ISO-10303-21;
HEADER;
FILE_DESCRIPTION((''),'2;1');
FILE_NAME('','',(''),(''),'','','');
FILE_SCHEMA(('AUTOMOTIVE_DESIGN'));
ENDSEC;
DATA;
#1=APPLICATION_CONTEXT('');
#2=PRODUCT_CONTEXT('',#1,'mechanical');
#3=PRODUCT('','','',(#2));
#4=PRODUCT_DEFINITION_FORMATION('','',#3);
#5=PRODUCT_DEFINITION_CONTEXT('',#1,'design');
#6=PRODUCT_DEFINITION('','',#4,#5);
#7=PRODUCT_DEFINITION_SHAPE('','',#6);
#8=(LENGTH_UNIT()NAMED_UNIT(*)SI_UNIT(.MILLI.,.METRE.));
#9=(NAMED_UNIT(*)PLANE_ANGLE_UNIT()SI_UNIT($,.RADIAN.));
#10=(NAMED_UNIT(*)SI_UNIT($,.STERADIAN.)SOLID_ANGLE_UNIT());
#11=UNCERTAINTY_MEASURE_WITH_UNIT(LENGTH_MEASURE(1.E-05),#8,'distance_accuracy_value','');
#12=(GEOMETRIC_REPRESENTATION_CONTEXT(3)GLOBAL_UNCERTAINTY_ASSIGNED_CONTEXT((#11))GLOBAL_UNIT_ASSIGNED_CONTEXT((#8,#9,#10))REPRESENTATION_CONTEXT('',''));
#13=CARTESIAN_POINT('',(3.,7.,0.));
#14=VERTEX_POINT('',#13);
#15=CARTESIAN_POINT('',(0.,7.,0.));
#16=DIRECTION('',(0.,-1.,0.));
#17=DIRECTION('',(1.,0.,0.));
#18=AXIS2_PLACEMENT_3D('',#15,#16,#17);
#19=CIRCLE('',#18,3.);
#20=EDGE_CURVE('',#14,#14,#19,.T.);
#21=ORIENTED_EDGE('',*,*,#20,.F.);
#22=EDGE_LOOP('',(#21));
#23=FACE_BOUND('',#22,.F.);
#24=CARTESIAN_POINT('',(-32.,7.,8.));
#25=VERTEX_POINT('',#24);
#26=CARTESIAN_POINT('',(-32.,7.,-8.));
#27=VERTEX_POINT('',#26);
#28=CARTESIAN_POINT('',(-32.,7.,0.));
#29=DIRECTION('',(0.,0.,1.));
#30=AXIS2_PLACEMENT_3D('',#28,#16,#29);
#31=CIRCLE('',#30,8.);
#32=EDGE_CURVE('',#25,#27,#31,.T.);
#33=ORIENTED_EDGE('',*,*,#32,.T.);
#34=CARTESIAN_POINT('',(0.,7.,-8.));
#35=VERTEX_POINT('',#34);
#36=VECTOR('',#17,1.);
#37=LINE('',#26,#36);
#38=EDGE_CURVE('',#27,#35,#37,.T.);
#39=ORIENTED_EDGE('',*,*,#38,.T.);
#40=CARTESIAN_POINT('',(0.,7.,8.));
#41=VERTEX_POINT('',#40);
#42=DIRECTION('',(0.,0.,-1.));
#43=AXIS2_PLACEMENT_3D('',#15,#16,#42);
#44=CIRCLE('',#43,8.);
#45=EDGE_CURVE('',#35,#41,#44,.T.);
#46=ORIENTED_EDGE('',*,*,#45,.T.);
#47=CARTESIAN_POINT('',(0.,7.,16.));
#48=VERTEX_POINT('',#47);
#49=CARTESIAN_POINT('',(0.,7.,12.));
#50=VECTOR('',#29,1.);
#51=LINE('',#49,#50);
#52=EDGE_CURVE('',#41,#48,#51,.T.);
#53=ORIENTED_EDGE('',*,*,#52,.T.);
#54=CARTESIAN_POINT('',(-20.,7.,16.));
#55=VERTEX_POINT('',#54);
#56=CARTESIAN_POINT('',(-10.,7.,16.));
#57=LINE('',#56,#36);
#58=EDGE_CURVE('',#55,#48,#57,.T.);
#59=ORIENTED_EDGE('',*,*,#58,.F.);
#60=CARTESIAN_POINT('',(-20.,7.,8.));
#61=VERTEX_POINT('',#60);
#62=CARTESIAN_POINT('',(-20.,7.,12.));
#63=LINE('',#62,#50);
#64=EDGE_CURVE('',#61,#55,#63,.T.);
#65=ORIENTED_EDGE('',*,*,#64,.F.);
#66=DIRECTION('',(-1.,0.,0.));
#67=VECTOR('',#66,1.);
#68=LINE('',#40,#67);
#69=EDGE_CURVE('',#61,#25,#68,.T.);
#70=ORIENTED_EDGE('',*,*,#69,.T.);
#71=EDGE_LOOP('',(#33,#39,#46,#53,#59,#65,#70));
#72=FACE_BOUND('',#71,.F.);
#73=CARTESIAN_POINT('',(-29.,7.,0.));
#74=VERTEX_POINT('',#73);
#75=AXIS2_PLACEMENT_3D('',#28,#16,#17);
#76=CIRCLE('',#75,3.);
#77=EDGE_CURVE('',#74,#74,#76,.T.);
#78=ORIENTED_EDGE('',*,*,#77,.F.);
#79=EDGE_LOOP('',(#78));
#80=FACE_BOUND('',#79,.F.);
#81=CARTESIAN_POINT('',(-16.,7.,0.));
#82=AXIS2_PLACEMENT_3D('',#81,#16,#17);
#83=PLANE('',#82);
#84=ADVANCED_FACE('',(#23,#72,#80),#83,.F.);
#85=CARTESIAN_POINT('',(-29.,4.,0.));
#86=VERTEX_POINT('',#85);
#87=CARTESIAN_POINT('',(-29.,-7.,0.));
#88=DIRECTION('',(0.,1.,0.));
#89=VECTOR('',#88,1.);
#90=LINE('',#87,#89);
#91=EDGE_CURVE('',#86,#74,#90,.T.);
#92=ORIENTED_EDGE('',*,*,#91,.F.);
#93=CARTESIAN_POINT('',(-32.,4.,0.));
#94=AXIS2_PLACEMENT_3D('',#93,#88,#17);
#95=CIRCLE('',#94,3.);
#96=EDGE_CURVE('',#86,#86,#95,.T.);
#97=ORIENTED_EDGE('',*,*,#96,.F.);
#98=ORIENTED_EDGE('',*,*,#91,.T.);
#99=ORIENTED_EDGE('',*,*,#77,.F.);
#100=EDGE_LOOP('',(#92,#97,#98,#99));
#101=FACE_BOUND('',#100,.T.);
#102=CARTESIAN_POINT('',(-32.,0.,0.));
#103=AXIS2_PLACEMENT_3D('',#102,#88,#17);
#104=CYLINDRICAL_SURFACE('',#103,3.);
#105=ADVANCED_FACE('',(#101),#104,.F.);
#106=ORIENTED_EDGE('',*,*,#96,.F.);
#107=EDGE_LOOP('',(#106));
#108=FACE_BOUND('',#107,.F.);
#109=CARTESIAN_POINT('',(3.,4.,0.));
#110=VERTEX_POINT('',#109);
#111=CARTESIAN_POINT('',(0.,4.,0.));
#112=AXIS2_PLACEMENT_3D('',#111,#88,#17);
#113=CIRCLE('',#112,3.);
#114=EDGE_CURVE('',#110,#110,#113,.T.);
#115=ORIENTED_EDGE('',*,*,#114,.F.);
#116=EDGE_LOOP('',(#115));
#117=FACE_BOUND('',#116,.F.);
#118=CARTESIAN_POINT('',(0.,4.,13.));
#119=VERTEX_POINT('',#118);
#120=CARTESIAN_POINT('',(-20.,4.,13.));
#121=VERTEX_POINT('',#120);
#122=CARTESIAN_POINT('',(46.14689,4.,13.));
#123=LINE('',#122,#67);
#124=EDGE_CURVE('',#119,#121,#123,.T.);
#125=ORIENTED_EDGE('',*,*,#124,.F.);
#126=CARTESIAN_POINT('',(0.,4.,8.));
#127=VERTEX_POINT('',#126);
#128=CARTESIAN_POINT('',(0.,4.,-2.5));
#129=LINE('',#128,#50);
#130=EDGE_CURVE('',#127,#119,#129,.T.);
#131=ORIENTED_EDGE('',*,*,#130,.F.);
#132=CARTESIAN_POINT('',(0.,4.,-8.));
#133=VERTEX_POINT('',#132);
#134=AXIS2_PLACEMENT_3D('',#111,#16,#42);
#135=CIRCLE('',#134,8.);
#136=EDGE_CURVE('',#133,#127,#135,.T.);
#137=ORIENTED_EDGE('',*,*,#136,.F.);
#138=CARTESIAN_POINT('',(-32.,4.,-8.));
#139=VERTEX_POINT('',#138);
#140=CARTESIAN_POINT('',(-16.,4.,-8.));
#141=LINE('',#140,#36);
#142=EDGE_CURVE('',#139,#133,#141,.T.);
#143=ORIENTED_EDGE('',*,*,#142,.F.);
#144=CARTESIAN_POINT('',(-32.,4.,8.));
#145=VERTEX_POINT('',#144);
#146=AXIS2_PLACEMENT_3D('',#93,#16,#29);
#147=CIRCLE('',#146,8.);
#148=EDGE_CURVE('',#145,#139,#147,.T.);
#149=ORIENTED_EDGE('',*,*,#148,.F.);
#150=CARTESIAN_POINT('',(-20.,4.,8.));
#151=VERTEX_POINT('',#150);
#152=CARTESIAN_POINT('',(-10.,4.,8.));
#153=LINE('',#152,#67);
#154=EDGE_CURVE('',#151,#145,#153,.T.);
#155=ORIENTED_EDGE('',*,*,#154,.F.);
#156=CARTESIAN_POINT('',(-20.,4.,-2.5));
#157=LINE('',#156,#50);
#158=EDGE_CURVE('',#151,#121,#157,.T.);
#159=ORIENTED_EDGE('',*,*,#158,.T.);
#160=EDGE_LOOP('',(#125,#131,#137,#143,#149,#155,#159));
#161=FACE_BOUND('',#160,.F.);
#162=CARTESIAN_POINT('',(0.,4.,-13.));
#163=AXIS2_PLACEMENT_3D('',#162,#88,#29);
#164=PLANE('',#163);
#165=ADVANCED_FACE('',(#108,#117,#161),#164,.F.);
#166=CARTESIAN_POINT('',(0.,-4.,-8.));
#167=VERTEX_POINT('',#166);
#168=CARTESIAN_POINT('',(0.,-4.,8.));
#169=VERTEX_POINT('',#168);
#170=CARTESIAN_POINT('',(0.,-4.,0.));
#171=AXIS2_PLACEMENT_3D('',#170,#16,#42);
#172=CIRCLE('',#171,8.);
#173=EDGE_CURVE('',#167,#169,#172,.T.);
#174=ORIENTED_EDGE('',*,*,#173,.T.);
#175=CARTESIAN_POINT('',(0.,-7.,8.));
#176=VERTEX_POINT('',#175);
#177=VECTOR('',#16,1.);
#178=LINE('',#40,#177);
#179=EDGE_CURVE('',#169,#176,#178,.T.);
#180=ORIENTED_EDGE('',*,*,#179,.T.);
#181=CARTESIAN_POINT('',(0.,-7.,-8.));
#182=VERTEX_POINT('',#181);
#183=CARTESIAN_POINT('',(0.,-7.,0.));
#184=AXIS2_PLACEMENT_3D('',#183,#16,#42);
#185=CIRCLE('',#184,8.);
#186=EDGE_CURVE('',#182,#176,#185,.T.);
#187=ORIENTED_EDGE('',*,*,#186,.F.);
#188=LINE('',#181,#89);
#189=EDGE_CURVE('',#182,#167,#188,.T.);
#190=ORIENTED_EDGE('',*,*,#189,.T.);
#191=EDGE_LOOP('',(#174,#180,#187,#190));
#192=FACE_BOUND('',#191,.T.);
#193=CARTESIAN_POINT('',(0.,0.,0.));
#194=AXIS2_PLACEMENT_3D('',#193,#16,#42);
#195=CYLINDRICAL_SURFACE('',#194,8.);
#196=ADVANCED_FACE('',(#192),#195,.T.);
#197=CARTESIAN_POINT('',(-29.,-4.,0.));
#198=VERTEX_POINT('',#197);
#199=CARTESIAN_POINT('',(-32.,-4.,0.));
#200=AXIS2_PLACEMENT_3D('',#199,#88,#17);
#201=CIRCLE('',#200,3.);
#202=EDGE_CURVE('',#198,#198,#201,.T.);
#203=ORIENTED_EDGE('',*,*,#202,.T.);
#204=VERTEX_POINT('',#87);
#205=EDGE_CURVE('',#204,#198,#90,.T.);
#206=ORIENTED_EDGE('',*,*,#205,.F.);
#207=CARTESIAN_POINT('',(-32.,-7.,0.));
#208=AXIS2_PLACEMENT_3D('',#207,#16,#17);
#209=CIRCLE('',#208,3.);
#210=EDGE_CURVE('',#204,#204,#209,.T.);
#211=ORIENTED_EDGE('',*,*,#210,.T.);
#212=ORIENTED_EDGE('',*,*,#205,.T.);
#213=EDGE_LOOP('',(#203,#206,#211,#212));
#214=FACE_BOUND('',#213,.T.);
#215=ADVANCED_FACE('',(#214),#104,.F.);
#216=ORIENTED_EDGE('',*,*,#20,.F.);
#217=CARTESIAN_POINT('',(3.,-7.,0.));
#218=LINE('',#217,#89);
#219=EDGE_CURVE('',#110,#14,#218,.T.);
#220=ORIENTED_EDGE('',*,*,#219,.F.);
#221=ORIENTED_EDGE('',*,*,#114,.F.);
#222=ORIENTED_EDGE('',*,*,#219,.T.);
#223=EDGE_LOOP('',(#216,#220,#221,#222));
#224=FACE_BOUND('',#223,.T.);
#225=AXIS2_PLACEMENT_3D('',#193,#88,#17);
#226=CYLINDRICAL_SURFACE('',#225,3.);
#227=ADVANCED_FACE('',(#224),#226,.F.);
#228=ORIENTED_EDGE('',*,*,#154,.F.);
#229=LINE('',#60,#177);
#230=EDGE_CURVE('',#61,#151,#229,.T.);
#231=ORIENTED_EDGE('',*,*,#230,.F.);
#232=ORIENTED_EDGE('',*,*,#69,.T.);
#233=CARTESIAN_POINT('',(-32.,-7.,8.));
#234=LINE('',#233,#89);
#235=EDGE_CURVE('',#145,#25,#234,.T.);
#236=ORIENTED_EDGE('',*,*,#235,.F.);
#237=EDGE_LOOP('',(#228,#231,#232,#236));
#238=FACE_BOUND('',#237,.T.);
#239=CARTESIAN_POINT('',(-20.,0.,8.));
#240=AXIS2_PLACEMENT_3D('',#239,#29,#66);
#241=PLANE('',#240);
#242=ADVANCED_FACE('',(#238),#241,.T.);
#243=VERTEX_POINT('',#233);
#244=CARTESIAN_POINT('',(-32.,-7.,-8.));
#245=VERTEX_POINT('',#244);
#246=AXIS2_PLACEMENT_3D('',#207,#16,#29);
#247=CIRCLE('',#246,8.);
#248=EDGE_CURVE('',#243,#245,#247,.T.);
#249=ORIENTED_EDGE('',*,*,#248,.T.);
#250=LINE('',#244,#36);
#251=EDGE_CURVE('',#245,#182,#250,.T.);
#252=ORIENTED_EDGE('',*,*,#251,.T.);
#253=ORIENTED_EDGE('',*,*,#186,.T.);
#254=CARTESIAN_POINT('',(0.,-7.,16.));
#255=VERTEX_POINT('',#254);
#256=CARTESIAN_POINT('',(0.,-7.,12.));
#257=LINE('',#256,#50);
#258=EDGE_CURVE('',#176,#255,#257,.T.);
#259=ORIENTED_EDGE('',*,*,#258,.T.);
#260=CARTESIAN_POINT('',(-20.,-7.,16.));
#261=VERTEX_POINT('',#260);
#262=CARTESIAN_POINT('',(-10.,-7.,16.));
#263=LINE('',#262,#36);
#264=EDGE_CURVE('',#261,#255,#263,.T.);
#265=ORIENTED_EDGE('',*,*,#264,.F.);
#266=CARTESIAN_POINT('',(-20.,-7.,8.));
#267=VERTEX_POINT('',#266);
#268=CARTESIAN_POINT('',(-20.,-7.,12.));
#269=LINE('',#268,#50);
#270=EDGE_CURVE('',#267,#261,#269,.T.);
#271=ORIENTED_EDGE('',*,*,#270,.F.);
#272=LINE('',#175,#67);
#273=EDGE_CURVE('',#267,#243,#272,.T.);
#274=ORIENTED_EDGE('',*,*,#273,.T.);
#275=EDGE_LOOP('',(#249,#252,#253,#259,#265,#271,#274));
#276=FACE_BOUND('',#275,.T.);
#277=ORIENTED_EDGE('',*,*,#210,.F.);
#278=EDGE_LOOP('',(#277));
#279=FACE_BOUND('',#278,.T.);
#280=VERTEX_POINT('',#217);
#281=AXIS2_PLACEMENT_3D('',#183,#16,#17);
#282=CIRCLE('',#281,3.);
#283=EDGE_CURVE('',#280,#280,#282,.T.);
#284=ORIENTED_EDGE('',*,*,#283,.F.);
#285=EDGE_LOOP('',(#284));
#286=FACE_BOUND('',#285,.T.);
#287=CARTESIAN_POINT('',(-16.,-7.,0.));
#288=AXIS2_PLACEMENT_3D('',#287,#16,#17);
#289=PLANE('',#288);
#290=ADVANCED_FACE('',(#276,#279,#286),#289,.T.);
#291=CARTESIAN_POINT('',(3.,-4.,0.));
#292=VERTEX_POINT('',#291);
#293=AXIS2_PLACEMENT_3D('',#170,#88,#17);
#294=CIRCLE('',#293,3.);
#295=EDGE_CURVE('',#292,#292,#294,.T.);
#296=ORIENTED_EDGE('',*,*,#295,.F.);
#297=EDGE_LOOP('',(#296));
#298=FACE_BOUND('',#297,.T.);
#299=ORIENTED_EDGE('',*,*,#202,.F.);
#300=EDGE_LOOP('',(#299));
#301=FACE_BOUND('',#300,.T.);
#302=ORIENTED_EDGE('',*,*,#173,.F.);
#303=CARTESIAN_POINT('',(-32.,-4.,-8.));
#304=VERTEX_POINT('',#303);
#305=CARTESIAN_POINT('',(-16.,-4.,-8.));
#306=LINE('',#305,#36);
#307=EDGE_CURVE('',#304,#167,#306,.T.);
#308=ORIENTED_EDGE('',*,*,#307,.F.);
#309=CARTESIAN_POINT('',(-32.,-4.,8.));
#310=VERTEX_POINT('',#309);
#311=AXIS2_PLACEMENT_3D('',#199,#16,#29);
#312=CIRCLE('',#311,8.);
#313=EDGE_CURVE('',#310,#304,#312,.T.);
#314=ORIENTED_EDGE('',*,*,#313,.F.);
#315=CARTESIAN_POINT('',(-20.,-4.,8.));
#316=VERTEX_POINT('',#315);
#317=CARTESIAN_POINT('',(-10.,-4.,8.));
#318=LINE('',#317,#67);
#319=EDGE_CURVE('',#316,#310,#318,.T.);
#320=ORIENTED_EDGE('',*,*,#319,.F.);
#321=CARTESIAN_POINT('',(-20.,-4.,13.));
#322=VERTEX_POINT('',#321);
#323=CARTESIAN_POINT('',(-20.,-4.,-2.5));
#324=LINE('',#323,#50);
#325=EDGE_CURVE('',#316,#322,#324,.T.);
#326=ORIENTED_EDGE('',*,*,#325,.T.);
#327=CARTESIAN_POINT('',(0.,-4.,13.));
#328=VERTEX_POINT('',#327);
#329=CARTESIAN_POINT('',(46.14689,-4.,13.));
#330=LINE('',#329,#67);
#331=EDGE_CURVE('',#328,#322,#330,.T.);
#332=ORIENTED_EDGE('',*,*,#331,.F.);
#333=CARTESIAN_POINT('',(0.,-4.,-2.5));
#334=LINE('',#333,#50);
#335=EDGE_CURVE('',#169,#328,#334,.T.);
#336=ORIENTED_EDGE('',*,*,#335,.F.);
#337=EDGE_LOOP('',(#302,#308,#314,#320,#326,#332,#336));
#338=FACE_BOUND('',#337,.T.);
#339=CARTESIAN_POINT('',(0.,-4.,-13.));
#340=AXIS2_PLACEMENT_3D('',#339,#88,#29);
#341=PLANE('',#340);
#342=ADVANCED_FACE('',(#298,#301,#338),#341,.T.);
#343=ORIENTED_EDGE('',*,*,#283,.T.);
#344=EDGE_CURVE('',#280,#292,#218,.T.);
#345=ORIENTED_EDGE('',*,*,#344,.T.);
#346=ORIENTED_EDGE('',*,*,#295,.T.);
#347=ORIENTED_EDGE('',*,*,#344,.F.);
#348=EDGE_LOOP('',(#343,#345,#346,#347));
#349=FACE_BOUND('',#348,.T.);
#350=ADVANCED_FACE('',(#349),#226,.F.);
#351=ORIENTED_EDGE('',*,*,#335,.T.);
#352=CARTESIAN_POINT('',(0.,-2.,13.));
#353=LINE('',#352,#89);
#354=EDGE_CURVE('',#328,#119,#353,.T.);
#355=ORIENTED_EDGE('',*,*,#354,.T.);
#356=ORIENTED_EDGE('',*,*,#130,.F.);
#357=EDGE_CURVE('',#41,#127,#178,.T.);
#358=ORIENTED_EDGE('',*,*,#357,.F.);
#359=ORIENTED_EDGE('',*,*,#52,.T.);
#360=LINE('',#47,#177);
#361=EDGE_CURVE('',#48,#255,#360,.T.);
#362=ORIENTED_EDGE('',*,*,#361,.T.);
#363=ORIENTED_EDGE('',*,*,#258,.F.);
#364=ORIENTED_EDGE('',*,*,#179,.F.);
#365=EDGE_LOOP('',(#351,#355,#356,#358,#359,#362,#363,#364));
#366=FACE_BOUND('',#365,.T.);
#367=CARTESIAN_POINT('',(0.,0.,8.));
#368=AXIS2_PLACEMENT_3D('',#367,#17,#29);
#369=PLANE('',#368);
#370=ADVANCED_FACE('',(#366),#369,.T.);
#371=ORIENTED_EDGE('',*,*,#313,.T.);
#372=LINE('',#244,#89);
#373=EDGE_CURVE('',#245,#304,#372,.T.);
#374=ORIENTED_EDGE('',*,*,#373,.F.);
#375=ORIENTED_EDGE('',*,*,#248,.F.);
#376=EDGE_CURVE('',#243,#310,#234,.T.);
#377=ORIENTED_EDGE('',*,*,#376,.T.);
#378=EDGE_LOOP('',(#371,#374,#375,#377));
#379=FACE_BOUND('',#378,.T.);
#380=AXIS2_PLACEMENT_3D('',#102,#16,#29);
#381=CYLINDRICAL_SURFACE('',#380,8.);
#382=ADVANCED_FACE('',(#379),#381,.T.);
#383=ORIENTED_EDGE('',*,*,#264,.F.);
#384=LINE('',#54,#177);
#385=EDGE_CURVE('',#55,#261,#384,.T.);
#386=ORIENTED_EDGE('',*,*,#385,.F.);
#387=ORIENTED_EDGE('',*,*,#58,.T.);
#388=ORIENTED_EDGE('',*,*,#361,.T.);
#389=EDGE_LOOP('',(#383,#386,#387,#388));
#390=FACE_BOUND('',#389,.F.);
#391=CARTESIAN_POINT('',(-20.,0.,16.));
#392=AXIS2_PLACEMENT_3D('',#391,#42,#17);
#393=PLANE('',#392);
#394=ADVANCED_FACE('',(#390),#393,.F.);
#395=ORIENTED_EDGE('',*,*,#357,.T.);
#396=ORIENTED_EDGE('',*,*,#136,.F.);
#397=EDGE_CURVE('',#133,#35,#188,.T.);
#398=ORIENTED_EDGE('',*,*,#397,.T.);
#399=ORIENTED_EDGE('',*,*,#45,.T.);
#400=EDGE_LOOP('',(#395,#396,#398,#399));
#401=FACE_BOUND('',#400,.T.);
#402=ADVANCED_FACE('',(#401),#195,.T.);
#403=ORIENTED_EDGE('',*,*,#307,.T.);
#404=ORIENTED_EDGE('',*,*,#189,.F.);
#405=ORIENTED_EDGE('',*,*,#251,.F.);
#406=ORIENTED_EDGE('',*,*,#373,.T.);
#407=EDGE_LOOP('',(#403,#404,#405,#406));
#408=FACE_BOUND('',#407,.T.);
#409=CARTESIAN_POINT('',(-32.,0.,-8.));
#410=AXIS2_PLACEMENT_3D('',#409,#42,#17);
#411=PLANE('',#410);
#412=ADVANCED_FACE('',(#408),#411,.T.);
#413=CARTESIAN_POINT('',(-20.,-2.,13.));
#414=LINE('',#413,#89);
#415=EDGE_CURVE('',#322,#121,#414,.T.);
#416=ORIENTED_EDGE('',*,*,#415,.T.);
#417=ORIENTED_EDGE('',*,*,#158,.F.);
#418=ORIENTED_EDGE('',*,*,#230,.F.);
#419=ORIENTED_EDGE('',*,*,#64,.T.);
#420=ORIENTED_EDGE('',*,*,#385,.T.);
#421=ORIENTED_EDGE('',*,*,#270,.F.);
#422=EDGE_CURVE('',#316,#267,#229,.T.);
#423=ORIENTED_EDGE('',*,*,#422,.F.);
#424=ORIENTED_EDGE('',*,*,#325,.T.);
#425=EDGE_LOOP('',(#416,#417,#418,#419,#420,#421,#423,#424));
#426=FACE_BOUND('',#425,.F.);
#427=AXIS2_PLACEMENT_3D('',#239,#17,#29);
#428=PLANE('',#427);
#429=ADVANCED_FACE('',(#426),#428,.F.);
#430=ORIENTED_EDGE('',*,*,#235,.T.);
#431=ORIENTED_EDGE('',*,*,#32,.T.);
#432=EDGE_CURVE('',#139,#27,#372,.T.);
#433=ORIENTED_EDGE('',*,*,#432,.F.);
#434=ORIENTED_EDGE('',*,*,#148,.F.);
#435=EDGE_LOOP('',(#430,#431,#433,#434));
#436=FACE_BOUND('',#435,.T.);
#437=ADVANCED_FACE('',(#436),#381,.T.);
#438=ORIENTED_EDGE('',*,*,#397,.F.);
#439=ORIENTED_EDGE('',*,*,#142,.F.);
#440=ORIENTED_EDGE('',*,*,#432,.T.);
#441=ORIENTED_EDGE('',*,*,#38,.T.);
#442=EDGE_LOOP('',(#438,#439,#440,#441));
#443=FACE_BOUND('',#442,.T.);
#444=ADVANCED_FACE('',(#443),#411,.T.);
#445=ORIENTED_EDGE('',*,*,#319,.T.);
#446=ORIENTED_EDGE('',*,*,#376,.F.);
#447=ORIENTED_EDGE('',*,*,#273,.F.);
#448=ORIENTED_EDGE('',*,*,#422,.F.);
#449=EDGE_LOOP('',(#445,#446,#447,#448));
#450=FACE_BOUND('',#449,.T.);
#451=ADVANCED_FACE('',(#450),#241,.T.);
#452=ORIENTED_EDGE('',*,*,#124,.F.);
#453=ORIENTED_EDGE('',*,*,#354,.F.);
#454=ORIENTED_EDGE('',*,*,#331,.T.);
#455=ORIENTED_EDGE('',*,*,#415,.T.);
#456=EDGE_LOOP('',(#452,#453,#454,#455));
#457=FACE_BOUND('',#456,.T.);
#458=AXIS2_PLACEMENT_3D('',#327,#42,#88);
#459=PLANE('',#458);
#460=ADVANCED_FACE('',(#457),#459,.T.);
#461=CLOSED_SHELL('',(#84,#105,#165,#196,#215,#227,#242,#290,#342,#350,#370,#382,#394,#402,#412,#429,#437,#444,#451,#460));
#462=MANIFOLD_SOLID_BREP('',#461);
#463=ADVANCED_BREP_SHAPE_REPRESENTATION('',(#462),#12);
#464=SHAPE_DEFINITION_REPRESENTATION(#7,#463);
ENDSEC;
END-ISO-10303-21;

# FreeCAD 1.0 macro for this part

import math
import FreeCAD as App
import Part
import Sketcher

doc = App.newDocument("Part")
params = doc.addObject("Spreadsheet::Sheet", "Params")
for row, (alias, value) in enumerate([
    ("sketch1_diameter", "6 mm"),
    ("sketch1_radius", "8 mm"),
    ("sketch1_width", "20 mm"),
    ("sketch1_width2", "12 mm"),
    ("sketch1_height", "8 mm"),
    ("pad1_length", "14 mm"),
    ("sketch2_width", "8 mm"),
    ("sketch2_height", "26 mm"),
    ("pocket1_length", "92.29378 mm"),
], start=1):
    params.set(f"A{row}", alias)
    params.set(f"B{row}", "=" + value)
    params.setAlias(f"B{row}", alias)

body = doc.addObject("PartDesign::Body", "Body")

# Sketch on XZ plane
sketch1 = body.newObject("Sketcher::SketchObject", "Sketch")
sketch1.AttachmentSupport = (doc.getObject("XZ_Plane"), [""])
sketch1.MapMode = "FlatFace"
sketch1.addGeometry([
    Part.ArcOfCircle(Part.Circle(App.Vector(0, 0, 0), App.Vector(0, 0, 1), 8), math.radians(-90), math.radians(90)),  # 0
    Part.LineSegment(App.Vector(0, 8, 0), App.Vector(0, 16, 0)),  # 1
    Part.LineSegment(App.Vector(0, 16, 0), App.Vector(-20, 16, 0)),  # 2
    Part.LineSegment(App.Vector(-20, 16, 0), App.Vector(-20, 8, 0)),  # 3
    Part.LineSegment(App.Vector(-20, 8, 0), App.Vector(-32, 8, 0)),  # 4
    Part.ArcOfCircle(Part.Circle(App.Vector(-32, 0, 0), App.Vector(0, 0, 1), 8), math.radians(90), math.radians(270)),  # 5
    Part.LineSegment(App.Vector(-32, -8, 0), App.Vector(0, -8, 0)),  # 6
    Part.Circle(App.Vector(-32, 0, 0), App.Vector(0, 0, 1), 3),  # 7
    Part.Circle(App.Vector(0, 0, 0), App.Vector(0, 0, 1), 3),  # 8
], False)
sketch1.addConstraint([
    Sketcher.Constraint("Coincident", 0, 2, 1, 1),
    Sketcher.Constraint("Coincident", 1, 2, 2, 1),
    Sketcher.Constraint("Coincident", 2, 2, 3, 1),
    Sketcher.Constraint("Coincident", 3, 2, 4, 1),
    Sketcher.Constraint("Tangent", 4, 2, 5, 1),
    Sketcher.Constraint("Tangent", 5, 2, 6, 1),
    Sketcher.Constraint("Tangent", 6, 2, 0, 1),
    Sketcher.Constraint("Vertical", 1),
    Sketcher.Constraint("Horizontal", 2),
    Sketcher.Constraint("Vertical", 3),
    Sketcher.Constraint("Horizontal", 4),
    Sketcher.Constraint("Horizontal", 6),
    Sketcher.Constraint("Coincident", 0, 3, -1, 1),
    Sketcher.Constraint("Coincident", 8, 3, -1, 1),
    Sketcher.Constraint("Coincident", 7, 3, 5, 3),
    Sketcher.Constraint("Equal", 0, 5),
    Sketcher.Constraint("Equal", 7, 8),
    Sketcher.Constraint("PointOnObject", 0, 2, -2),
    Sketcher.Constraint("Diameter", 7, 6.0),
    Sketcher.Constraint("Radius", 0, 8.0),
    Sketcher.Constraint("DistanceX", 2, 2, 2, 1, 20.0),
    Sketcher.Constraint("DistanceX", 4, 2, 4, 1, 12.0),
    Sketcher.Constraint("DistanceY", 1, 1, 1, 2, 8.0),
])
sketch1.setExpression("Constraints[18]", "Params.sketch1_diameter")
sketch1.setExpression("Constraints[19]", "Params.sketch1_radius")
sketch1.setExpression("Constraints[20]", "Params.sketch1_width")
sketch1.setExpression("Constraints[21]", "Params.sketch1_width2")
sketch1.setExpression("Constraints[22]", "Params.sketch1_height")
pad1 = body.newObject("PartDesign::Pad", "Pad")
pad1.Profile = sketch1
pad1.setExpression("Length", "Params.pad1_length")
pad1.Midplane = True

# Sketch on YZ plane
sketch2 = body.newObject("Sketcher::SketchObject", "Sketch001")
sketch2.AttachmentSupport = (doc.getObject("YZ_Plane"), [""])
sketch2.MapMode = "FlatFace"
sketch2.addGeometry([
    Part.LineSegment(App.Vector(-4, 13, 0), App.Vector(-4, -13, 0)),
    Part.LineSegment(App.Vector(-4, -13, 0), App.Vector(4, -13, 0)),
    Part.LineSegment(App.Vector(4, -13, 0), App.Vector(4, 13, 0)),
    Part.LineSegment(App.Vector(4, 13, 0), App.Vector(-4, 13, 0)),
], False)
sketch2.addConstraint([
    Sketcher.Constraint("Coincident", 0, 2, 1, 1),
    Sketcher.Constraint("Coincident", 1, 2, 2, 1),
    Sketcher.Constraint("Coincident", 2, 2, 3, 1),
    Sketcher.Constraint("Coincident", 3, 2, 0, 1),
    Sketcher.Constraint("Vertical", 0),
    Sketcher.Constraint("Horizontal", 1),
    Sketcher.Constraint("Vertical", 2),
    Sketcher.Constraint("Horizontal", 3),
    Sketcher.Constraint("Symmetric", 0, 2, 2, 2, -1, 1),
    Sketcher.Constraint("DistanceX", 1, 1, 1, 2, 8.0),
    Sketcher.Constraint("DistanceY", 0, 2, 0, 1, 26.0),
])
sketch2.setExpression("Constraints[9]", "Params.sketch2_width")
sketch2.setExpression("Constraints[10]", "Params.sketch2_height")
pocket1 = body.newObject("PartDesign::Pocket", "Pocket")
pocket1.Profile = sketch2
pocket1.setExpression("Length", "Params.pocket1_length")
pocket1.Midplane = True

doc.recompute()
